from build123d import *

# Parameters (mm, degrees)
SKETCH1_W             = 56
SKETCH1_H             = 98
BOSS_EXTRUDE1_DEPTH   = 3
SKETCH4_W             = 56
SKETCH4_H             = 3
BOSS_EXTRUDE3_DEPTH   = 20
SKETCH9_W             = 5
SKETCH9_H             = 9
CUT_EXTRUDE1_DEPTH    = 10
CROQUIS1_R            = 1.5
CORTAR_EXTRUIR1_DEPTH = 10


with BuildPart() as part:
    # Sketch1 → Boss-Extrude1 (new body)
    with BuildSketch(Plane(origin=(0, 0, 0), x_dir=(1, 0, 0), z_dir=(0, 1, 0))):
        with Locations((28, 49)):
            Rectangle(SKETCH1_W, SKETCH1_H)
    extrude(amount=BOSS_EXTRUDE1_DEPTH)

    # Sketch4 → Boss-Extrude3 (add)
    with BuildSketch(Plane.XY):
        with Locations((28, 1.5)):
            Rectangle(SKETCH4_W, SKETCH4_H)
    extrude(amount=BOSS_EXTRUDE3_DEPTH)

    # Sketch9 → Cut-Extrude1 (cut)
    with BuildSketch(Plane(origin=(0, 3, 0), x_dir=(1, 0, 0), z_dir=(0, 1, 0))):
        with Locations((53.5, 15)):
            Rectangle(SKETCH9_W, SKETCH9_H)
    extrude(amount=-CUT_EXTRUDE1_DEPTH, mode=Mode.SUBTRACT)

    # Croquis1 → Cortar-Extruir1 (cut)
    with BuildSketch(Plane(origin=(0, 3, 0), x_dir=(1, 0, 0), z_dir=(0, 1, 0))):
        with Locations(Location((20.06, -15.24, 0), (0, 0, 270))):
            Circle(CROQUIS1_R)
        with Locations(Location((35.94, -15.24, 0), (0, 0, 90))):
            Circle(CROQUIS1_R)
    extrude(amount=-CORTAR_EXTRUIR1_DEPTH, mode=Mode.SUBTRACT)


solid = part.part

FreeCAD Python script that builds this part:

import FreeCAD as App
import Part
import Sketcher
Q = App.Units.Quantity


def add_polygon(sketch, points):
    """Adds a closed chain of lines whose ends are joined by coincident constraints."""
    first, n = sketch.GeometryCount, len(points)
    for a, b in zip(points, points[1:] + points[:1]):
        sketch.addGeometry(Part.LineSegment(App.Vector(*a, 0), App.Vector(*b, 0)), False)
    for i in range(n):
        sketch.addConstraint(Sketcher.Constraint("Coincident", first + i, 2, first + (i + 1) % n, 1))

doc = App.newDocument("Part")
params = doc.addObject("Spreadsheet::Sheet", "Params")
for row, (alias, value) in enumerate([
    ("sketch1_width", "56 mm"),
    ("sketch1_height", "98 mm"),
    ("pad1_length", "3 mm"),
    ("sketch2_width", "56 mm"),
    ("sketch2_height", "3 mm"),
    ("pad2_length", "20 mm"),
    ("sketch3_width", "5 mm"),
    ("sketch3_height", "9 mm"),
    ("pocket1_length", "10 mm"),
    ("sketch4_diameter", "3 mm"),
    ("pocket2_length", "10 mm"),
], start=1):
    params.set(f"A{row}", alias)
    params.set(f"B{row}", "=" + value)
    params.setAlias(f"B{row}", alias)

body = doc.addObject("PartDesign::Body", "Body")

sketch1 = doc.addObject("Sketcher::SketchObject", "Sketch")
body.addObject(sketch1)
sketch1.AttachmentSupport = (doc.XZ_Plane, [""])
sketch1.MapMode = "FlatFace"
add_polygon(sketch1, [(0, -98), (0, 0), (56, 0), (56, -98)])
sketch1.addConstraint([
    Sketcher.Constraint("Vertical", 0),
    Sketcher.Constraint("Horizontal", 1),
    Sketcher.Constraint("Vertical", 2),
    Sketcher.Constraint("Horizontal", 3),
    Sketcher.Constraint("Coincident", 0, 2, -1, 1),
    Sketcher.Constraint("DistanceX", 1, 1, 1, 2, Q("56 mm")),
    Sketcher.Constraint("DistanceY", 0, 1, 0, 2, Q("98 mm")),
])
sketch1.setExpression("Constraints[9]", "Params.sketch1_width")
sketch1.setExpression("Constraints[10]", "Params.sketch1_height")
pad1 = doc.addObject("PartDesign::Pad", "Pad")
body.addObject(pad1)
pad1.Profile = sketch1
pad1.setExpression("Length", "Params.pad1_length")
pad1.Reversed = True

sketch2 = doc.addObject("Sketcher::SketchObject", "Sketch001")
body.addObject(sketch2)
sketch2.AttachmentSupport = (doc.XY_Plane, [""])
sketch2.MapMode = "FlatFace"
add_polygon(sketch2, [(0, 3), (0, 0), (56, 0), (56, 3)])
sketch2.addConstraint([
    Sketcher.Constraint("Vertical", 0),
    Sketcher.Constraint("Horizontal", 1),
    Sketcher.Constraint("Vertical", 2),
    Sketcher.Constraint("Horizontal", 3),
    Sketcher.Constraint("Coincident", 0, 2, -1, 1),
    Sketcher.Constraint("DistanceX", 1, 1, 1, 2, Q("56 mm")),
    Sketcher.Constraint("DistanceY", 0, 2, 0, 1, Q("3 mm")),
])
sketch2.setExpression("Constraints[9]", "Params.sketch2_width")
sketch2.setExpression("Constraints[10]", "Params.sketch2_height")
pad2 = doc.addObject("PartDesign::Pad", "Pad001")
body.addObject(pad2)
pad2.Profile = sketch2
pad2.setExpression("Length", "Params.pad2_length")

sketch3 = doc.addObject("Sketcher::SketchObject", "Sketch002")
body.addObject(sketch3)
sketch3.AttachmentSupport = (doc.XZ_Plane, [""])
sketch3.MapMode = "FlatFace"
sketch3.AttachmentOffset = App.Placement(App.Vector(0, 0, -3), App.Rotation())
add_polygon(sketch3, [(51, -19.5), (51, -10.5), (56, -10.5), (56, -19.5)])
sketch3.addConstraint([
    Sketcher.Constraint("Vertical", 0),
    Sketcher.Constraint("Horizontal", 1),
    Sketcher.Constraint("Vertical", 2),
    Sketcher.Constraint("Horizontal", 3),
    Sketcher.Constraint("DistanceX", 1, 1, 1, 2, Q("5 mm")),
    Sketcher.Constraint("DistanceY", 0, 1, 0, 2, Q("9 mm")),
    Sketcher.Constraint("DistanceX", -1, 1, 0, 2, Q("51 mm")),
    Sketcher.Constraint("DistanceY", 0, 2, -1, 1, Q("10.5 mm")),
])
sketch3.setExpression("Constraints[8]", "Params.sketch3_width")
sketch3.setExpression("Constraints[9]", "Params.sketch3_height")
pocket1 = doc.addObject("PartDesign::Pocket", "Pocket")
body.addObject(pocket1)
pocket1.Profile = sketch3
pocket1.setExpression("Length", "Params.pocket1_length")
pocket1.Reversed = True

sketch4 = doc.addObject("Sketcher::SketchObject", "Sketch003")
body.addObject(sketch4)
sketch4.AttachmentSupport = (doc.XZ_Plane, [""])
sketch4.MapMode = "FlatFace"
sketch4.AttachmentOffset = App.Placement(App.Vector(0, 0, -3), App.Rotation())
sketch4.addGeometry([
    Part.Circle(App.Vector(20.06, 15.24, 0), App.Vector(0, 0, 1), 1.5),
    Part.Circle(App.Vector(35.94, 15.24, 0), App.Vector(0, 0, 1), 1.5),
], False)
sketch4.addConstraint([
    Sketcher.Constraint("Equal", 0, 1),
    Sketcher.Constraint("Horizontal", 0, 3, 1, 3),
    Sketcher.Constraint("Diameter", 0, Q("3 mm")),
    Sketcher.Constraint("DistanceX", -1, 1, 0, 3, Q("20.06 mm")),
    Sketcher.Constraint("DistanceY", -1, 1, 0, 3, Q("15.24 mm")),
    Sketcher.Constraint("DistanceX", -1, 1, 1, 3, Q("35.94 mm")),
])
sketch4.setExpression("Constraints[2]", "Params.sketch4_diameter")
pocket2 = doc.addObject("PartDesign::Pocket", "Pocket001")
body.addObject(pocket2)
pocket2.Profile = sketch4
pocket2.setExpression("Length", "Params.pocket2_length")
pocket2.Reversed = True

doc.recompute()
